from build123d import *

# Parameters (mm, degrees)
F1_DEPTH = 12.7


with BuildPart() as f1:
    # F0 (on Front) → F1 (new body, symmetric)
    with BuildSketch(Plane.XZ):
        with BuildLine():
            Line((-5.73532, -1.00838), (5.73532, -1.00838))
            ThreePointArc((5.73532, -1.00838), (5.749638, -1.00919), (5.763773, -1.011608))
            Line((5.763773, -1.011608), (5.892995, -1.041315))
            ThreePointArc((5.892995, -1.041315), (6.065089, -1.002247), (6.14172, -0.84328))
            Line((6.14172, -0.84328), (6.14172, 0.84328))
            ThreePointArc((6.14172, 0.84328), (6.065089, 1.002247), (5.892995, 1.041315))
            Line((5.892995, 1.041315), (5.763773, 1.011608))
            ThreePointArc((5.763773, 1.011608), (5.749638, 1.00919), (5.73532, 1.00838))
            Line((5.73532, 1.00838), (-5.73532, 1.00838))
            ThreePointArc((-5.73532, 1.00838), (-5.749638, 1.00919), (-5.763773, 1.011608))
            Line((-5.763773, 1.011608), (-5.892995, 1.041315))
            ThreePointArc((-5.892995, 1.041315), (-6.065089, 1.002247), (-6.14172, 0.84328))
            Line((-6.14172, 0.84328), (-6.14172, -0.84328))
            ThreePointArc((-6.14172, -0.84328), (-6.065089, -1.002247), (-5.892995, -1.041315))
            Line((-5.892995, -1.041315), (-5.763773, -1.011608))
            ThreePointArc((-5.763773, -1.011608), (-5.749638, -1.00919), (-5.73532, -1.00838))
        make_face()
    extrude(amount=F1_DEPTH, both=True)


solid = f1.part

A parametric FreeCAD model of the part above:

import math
import FreeCAD as App
import Part
import Sketcher

V = App.Vector
Q = App.Units.Quantity

doc = App.newDocument("Part")
body = doc.addObject("PartDesign::Body", "Body")

# Sketch on XZ plane
sketch1 = body.newObject("Sketcher::SketchObject", "Sketch")
sketch1.AttachmentSupport = (doc.getObject("XZ_Plane"), [""])
sketch1.MapMode = "FlatFace"
sketch1.addGeometry([
    Part.LineSegment(V(-5.735, -1.008, 0), V(5.735, -1.008, 0)),  # 0
    Part.ArcOfCircle(Part.Circle(V(5.735, -1.135, 0), V(0, 0, 1), 0.127), math.radians(77.06), math.radians(90)),  # 1
    Part.LineSegment(V(5.764, -1.012, 0), V(5.893, -1.041, 0)),  # 2
    Part.ArcOfCircle(Part.Circle(V(5.939, -0.843, 0), V(0, 0, 1), 0.203), math.radians(-103), math.radians(0)),  # 3
    Part.LineSegment(V(6.142, -0.843, 0), V(6.142, 0.843, 0)),  # 4
    Part.ArcOfCircle(Part.Circle(V(5.939, 0.843, 0), V(0, 0, 1), 0.203), math.radians(0), math.radians(103)),  # 5
    Part.LineSegment(V(5.893, 1.041, 0), V(5.764, 1.012, 0)),  # 6
    Part.ArcOfCircle(Part.Circle(V(5.735, 1.135, 0), V(0, 0, 1), 0.127), math.radians(-90), math.radians(-77.06)),  # 7
    Part.LineSegment(V(5.735, 1.008, 0), V(-5.735, 1.008, 0)),  # 8
    Part.ArcOfCircle(Part.Circle(V(-5.735, 1.135, 0), V(0, 0, 1), 0.127), math.radians(-102.94), math.radians(-90)),  # 9
    Part.LineSegment(V(-5.764, 1.012, 0), V(-5.893, 1.041, 0)),  # 10
    Part.ArcOfCircle(Part.Circle(V(-5.939, 0.843, 0), V(0, 0, 1), 0.203), math.radians(77), math.radians(180)),  # 11
    Part.LineSegment(V(-6.142, 0.843, 0), V(-6.142, -0.843, 0)),  # 12
    Part.ArcOfCircle(Part.Circle(V(-5.939, -0.843, 0), V(0, 0, 1), 0.203), math.radians(-180), math.radians(-77)),  # 13
    Part.LineSegment(V(-5.893, -1.041, 0), V(-5.764, -1.012, 0)),  # 14
    Part.ArcOfCircle(Part.Circle(V(-5.735, -1.135, 0), V(0, 0, 1), 0.127), math.radians(90), math.radians(102.94)),  # 15
], False)
sketch1.addConstraint([
    Sketcher.Constraint("Coincident", 0, 2, 1, 2),
    Sketcher.Constraint("Coincident", 1, 1, 2, 1),
    Sketcher.Constraint("Coincident", 2, 2, 3, 1),
    Sketcher.Constraint("Tangent", 3, 2, 4, 1),
    Sketcher.Constraint("Tangent", 4, 2, 5, 1),
    Sketcher.Constraint("Coincident", 5, 2, 6, 1),
    Sketcher.Constraint("Coincident", 6, 2, 7, 2),
    Sketcher.Constraint("Coincident", 7, 1, 8, 1),
    Sketcher.Constraint("Coincident", 8, 2, 9, 2),
    Sketcher.Constraint("Coincident", 9, 1, 10, 1),
    Sketcher.Constraint("Coincident", 10, 2, 11, 1),
    Sketcher.Constraint("Tangent", 11, 2, 12, 1),
    Sketcher.Constraint("Tangent", 12, 2, 13, 1),
    Sketcher.Constraint("Coincident", 13, 2, 14, 1),
    Sketcher.Constraint("Coincident", 14, 2, 15, 2),
    Sketcher.Constraint("Coincident", 15, 1, 0, 1),
    Sketcher.Constraint("Horizontal", 0),
    Sketcher.Constraint("Vertical", 4),
    Sketcher.Constraint("Horizontal", 8),
    Sketcher.Constraint("Vertical", 12),
    Sketcher.Constraint("Equal", 3, 5),
    Sketcher.Constraint("Equal", 1, 7),
    Sketcher.Constraint("Equal", 7, 9),
    Sketcher.Constraint("Equal", 5, 11),
    Sketcher.Constraint("Equal", 11, 13),
    Sketcher.Constraint("Equal", 9, 15),
    Sketcher.Constraint("Symmetric", 1, 3, 9, 3, -1, 1),
    Sketcher.Constraint("Symmetric", 3, 3, 11, 3, -1, 1),
    Sketcher.Constraint("Symmetric", 5, 2, 13, 2, -1, 1),
    Sketcher.Constraint("Symmetric", 6, 2, 14, 2, -1, 1),
    Sketcher.Constraint("Symmetric", 6, 2, 9, 1, -2),
    Sketcher.Constraint("Symmetric", 5, 2, 10, 2, -2),
    Sketcher.Constraint("Horizontal", 2, 2, 13, 2),
    Sketcher.Constraint("Horizontal", 1, 1, 14, 2),
    Sketcher.Constraint("Vertical", 0, 2, 7, 1),
    Sketcher.Constraint("Vertical", 8, 2, 15, 1),
    Sketcher.Constraint("Radius", 3, Q("0.008 in")),
    Sketcher.Constraint("DistanceX", 0, 1, 0, 2, Q("0.4516 in")),
    Sketcher.Constraint("DistanceY", 4, 1, 4, 2, Q("0.0664 in")),
    Sketcher.Constraint("DistanceX", 0, 2, 3, 3, Q("0.008 in")),
    Sketcher.Constraint("DistanceX", 11, 3, 8, 2, Q("0.008 in")),
    Sketcher.Constraint("DistanceY", 0, 2, -1, 1, Q("0.0397 in")),
    Sketcher.Constraint("Radius", 1, 0.127073),
    Sketcher.Constraint("DistanceY", 1, 1, -1, 1, 1.011608),
    Sketcher.Constraint("DistanceX", 1, 3, 2, 2, 0.157682),
    Sketcher.Constraint("DistanceY", 1, 3, 2, 2, 0.094138),
])
pad1 = body.newObject("PartDesign::Pad", "Pad")
pad1.Profile = sketch1
pad1.Length = Q("1 in")
pad1.Midplane = True

doc.recompute()
